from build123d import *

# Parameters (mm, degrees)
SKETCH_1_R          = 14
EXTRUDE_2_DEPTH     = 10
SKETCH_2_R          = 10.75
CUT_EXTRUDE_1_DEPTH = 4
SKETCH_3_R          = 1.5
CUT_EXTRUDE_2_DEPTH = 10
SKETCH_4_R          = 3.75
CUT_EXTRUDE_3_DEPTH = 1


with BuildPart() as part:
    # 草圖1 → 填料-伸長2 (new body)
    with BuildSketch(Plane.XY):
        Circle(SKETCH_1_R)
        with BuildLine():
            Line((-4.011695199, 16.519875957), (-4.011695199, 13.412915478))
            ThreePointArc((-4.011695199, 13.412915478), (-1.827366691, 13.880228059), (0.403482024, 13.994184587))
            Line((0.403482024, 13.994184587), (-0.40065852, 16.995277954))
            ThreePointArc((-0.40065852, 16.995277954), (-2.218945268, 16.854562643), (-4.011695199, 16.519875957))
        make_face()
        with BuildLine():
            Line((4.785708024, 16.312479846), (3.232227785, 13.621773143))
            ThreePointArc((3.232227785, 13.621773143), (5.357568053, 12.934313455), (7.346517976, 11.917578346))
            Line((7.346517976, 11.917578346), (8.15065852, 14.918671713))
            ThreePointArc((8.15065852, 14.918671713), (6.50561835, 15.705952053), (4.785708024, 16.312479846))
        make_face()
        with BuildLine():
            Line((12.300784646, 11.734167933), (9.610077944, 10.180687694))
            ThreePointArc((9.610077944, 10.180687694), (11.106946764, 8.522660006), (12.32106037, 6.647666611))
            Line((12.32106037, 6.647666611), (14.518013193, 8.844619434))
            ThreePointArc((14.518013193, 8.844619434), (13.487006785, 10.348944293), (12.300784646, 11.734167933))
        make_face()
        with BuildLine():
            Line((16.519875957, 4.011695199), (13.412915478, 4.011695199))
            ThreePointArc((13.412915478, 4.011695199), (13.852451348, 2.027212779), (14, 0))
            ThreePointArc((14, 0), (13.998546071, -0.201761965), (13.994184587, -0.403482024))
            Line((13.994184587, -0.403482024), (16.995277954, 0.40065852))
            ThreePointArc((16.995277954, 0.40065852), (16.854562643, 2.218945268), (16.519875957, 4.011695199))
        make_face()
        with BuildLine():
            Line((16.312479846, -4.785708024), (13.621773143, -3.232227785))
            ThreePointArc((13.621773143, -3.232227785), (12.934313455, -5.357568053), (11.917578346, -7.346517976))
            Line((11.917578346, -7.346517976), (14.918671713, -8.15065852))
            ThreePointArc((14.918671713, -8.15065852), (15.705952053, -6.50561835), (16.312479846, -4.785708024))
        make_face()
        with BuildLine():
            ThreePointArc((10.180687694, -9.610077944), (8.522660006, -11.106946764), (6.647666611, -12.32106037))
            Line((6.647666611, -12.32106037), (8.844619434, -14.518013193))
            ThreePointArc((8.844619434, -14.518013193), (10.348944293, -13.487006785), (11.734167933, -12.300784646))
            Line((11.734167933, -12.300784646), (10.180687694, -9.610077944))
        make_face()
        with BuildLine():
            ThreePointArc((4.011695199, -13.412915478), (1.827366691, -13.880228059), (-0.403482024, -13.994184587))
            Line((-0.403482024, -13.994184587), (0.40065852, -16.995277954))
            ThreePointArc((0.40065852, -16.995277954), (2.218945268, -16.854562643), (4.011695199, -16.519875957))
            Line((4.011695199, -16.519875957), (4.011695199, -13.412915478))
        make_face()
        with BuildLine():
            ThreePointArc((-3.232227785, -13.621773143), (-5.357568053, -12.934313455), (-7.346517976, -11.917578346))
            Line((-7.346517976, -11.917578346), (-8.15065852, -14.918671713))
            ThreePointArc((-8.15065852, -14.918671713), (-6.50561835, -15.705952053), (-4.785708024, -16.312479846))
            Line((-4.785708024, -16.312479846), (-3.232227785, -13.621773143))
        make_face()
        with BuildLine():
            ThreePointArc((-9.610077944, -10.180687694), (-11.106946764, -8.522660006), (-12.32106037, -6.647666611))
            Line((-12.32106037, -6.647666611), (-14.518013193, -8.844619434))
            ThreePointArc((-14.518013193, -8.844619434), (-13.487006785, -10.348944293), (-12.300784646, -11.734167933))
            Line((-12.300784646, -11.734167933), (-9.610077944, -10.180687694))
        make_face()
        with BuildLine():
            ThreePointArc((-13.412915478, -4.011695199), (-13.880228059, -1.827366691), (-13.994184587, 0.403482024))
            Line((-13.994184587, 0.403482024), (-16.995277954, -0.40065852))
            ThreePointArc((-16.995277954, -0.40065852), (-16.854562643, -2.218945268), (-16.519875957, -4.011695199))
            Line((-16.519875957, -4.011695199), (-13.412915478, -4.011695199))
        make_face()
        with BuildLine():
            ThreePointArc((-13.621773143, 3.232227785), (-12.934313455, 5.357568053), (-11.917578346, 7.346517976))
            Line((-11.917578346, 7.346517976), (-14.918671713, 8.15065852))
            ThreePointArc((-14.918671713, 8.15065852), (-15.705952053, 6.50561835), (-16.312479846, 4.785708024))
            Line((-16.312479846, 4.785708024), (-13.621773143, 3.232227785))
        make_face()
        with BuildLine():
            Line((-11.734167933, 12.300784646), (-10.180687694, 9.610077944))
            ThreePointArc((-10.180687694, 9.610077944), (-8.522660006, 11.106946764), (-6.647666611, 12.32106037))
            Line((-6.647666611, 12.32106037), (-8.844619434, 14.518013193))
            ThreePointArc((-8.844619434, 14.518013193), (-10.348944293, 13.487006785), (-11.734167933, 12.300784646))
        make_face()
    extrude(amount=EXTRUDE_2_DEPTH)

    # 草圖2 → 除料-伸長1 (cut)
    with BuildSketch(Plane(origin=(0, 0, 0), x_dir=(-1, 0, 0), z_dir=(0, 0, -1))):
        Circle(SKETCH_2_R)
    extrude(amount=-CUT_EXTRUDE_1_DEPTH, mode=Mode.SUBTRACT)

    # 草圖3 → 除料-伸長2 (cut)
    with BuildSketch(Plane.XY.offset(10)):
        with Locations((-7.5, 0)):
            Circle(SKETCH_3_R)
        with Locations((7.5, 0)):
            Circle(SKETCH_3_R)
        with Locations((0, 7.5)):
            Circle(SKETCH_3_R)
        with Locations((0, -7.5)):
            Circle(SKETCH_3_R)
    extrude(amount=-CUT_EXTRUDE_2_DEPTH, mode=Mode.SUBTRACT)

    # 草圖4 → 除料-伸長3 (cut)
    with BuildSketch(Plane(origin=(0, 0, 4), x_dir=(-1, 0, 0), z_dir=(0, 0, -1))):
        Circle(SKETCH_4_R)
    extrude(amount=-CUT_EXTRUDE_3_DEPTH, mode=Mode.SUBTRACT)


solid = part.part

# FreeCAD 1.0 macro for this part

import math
import FreeCAD as App
import Part
import Sketcher

V = App.Vector
Q = App.Units.Quantity

doc = App.newDocument("Part")
params = doc.addObject("Spreadsheet::Sheet", "Params")
for row, (alias, value) in enumerate([
    ("sketch1_radius", "17 mm"),
    ("sketch1_radius2", "14 mm"),
    ("pad1_length", "10 mm"),
    ("sketch2_diameter", "21.5 mm"),
    ("pocket1_length", "4 mm"),
    ("sketch3_diameter", "3 mm"),
    ("pocket2_length", "10 mm"),
    ("sketch4_diameter", "7.5 mm"),
    ("pocket3_length", "1 mm"),
], start=1):
    params.set(f"A{row}", alias)
    params.set(f"B{row}", "=" + value)
    params.setAlias(f"B{row}", alias)

body = doc.addObject("PartDesign::Body", "Body")

sketch1 = body.newObject("Sketcher::SketchObject", "Sketch")
sketch1.AttachmentSupport = (doc.getObject("XY_Plane"), [""])
sketch1.MapMode = "FlatFace"
sketch1.addGeometry(Part.LineSegment(V(0.4, 14, 0), V(-0.4, 17, 0)), False)
sketch1.addGeometry(Part.ArcOfCircle(Part.Circle(V(0, 0, 0), V(0, 0, 1), 17), math.radians(91.35), math.radians(103.65)), False)
sketch1.addGeometry(Part.LineSegment(V(-4, 16.5, 0), V(-4, 13.4, 0)), False)
sketch1.addGeometry(Part.ArcOfCircle(Part.Circle(V(0, 0, 0), V(0, 0, 1), 14), math.radians(106.65), math.radians(118.35)), False)
sketch1.addGeometry(Part.LineSegment(V(-6.6, 12.3, 0), V(-8.8, 14.5, 0)), False)
sketch1.addGeometry(Part.ArcOfCircle(Part.Circle(V(0, 0, 0), V(0, 0, 1), 17), math.radians(121.35), math.radians(133.65)), False)
sketch1.addGeometry(Part.LineSegment(V(-11.7, 12.3, 0), V(-10.2, 9.6, 0)), False)
sketch1.addGeometry(Part.ArcOfCircle(Part.Circle(V(0, 0, 0), V(0, 0, 1), 14), math.radians(136.65), math.radians(148.35)), False)
sketch1.addGeometry(Part.LineSegment(V(-11.9, 7.3, 0), V(-14.9, 8.2, 0)), False)
sketch1.addGeometry(Part.ArcOfCircle(Part.Circle(V(0, 0, 0), V(0, 0, 1), 17), math.radians(151.35), math.radians(163.65)), False)
sketch1.addGeometry(Part.LineSegment(V(-16.3, 4.8, 0), V(-13.6, 3.2, 0)), False)
sketch1.addGeometry(Part.ArcOfCircle(Part.Circle(V(0, 0, 0), V(0, 0, 1), 14), math.radians(166.65), math.radians(178.35)), False)
sketch1.addGeometry(Part.LineSegment(V(-14, 0.4, 0), V(-17, -0.4, 0)), False)
sketch1.addGeometry(Part.ArcOfCircle(Part.Circle(V(0, 0, 0), V(0, 0, 1), 17), math.radians(-178.65), math.radians(-166.35)), False)
sketch1.addGeometry(Part.LineSegment(V(-16.5, -4, 0), V(-13.4, -4, 0)), False)
sketch1.addGeometry(Part.ArcOfCircle(Part.Circle(V(0, 0, 0), V(0, 0, 1), 14), math.radians(-163.35), math.radians(-151.65)), False)
sketch1.addGeometry(Part.LineSegment(V(-12.3, -6.6, 0), V(-14.5, -8.8, 0)), False)
sketch1.addGeometry(Part.ArcOfCircle(Part.Circle(V(0, 0, 0), V(0, 0, 1), 17), math.radians(-148.65), math.radians(-136.35)), False)
sketch1.addGeometry(Part.LineSegment(V(-12.3, -11.7, 0), V(-9.6, -10.2, 0)), False)
sketch1.addGeometry(Part.ArcOfCircle(Part.Circle(V(0, 0, 0), V(0, 0, 1), 14), math.radians(-133.35), math.radians(-121.65)), False)
sketch1.addGeometry(Part.LineSegment(V(-7.3, -11.9, 0), V(-8.2, -14.9, 0)), False)
sketch1.addGeometry(Part.ArcOfCircle(Part.Circle(V(0, 0, 0), V(0, 0, 1), 17), math.radians(-118.65), math.radians(-106.35)), False)
sketch1.addGeometry(Part.LineSegment(V(-4.8, -16.3, 0), V(-3.2, -13.6, 0)), False)
sketch1.addGeometry(Part.ArcOfCircle(Part.Circle(V(0, 0, 0), V(0, 0, 1), 14), math.radians(-103.35), math.radians(-91.65)), False)
sketch1.addGeometry(Part.LineSegment(V(-0.4, -14, 0), V(0.4, -17, 0)), False)
sketch1.addGeometry(Part.ArcOfCircle(Part.Circle(V(0, 0, 0), V(0, 0, 1), 17), math.radians(-88.65), math.radians(-76.35)), False)
sketch1.addGeometry(Part.LineSegment(V(4, -16.5, 0), V(4, -13.4, 0)), False)
sketch1.addGeometry(Part.ArcOfCircle(Part.Circle(V(0, 0, 0), V(0, 0, 1), 14), math.radians(-73.35), math.radians(-61.65)), False)
sketch1.addGeometry(Part.LineSegment(V(6.6, -12.3, 0), V(8.8, -14.5, 0)), False)
sketch1.addGeometry(Part.ArcOfCircle(Part.Circle(V(0, 0, 0), V(0, 0, 1), 17), math.radians(-58.65), math.radians(-46.35)), False)
sketch1.addGeometry(Part.LineSegment(V(11.7, -12.3, 0), V(10.2, -9.6, 0)), False)
sketch1.addGeometry(Part.ArcOfCircle(Part.Circle(V(0, 0, 0), V(0, 0, 1), 14), math.radians(-43.35), math.radians(-31.65)), False)
sketch1.addGeometry(Part.LineSegment(V(11.9, -7.3, 0), V(14.9, -8.2, 0)), False)
sketch1.addGeometry(Part.ArcOfCircle(Part.Circle(V(0, 0, 0), V(0, 0, 1), 17), math.radians(-28.65), math.radians(-16.35)), False)
sketch1.addGeometry(Part.LineSegment(V(16.3, -4.8, 0), V(13.6, -3.2, 0)), False)
sketch1.addGeometry(Part.ArcOfCircle(Part.Circle(V(0, 0, 0), V(0, 0, 1), 14), math.radians(-13.35), math.radians(-1.65)), False)
sketch1.addGeometry(Part.LineSegment(V(14, -0.4, 0), V(17, 0.4, 0)), False)
sketch1.addGeometry(Part.ArcOfCircle(Part.Circle(V(0, 0, 0), V(0, 0, 1), 17), math.radians(1.35), math.radians(13.65)), False)
sketch1.addGeometry(Part.LineSegment(V(16.5, 4, 0), V(13.4, 4, 0)), False)
sketch1.addGeometry(Part.ArcOfCircle(Part.Circle(V(0, 0, 0), V(0, 0, 1), 14), math.radians(16.65), math.radians(28.35)), False)
sketch1.addGeometry(Part.LineSegment(V(12.3, 6.6, 0), V(14.5, 8.8, 0)), False)
sketch1.addGeometry(Part.ArcOfCircle(Part.Circle(V(0, 0, 0), V(0, 0, 1), 17), math.radians(31.35), math.radians(43.65)), False)
sketch1.addGeometry(Part.LineSegment(V(12.3, 11.7, 0), V(9.6, 10.2, 0)), False)
sketch1.addGeometry(Part.ArcOfCircle(Part.Circle(V(0, 0, 0), V(0, 0, 1), 14), math.radians(46.65), math.radians(58.35)), False)
sketch1.addGeometry(Part.LineSegment(V(7.3, 11.9, 0), V(8.2, 14.9, 0)), False)
sketch1.addGeometry(Part.ArcOfCircle(Part.Circle(V(0, 0, 0), V(0, 0, 1), 17), math.radians(61.35), math.radians(73.65)), False)
sketch1.addGeometry(Part.LineSegment(V(4.8, 16.3, 0), V(3.2, 13.6, 0)), False)
sketch1.addGeometry(Part.ArcOfCircle(Part.Circle(V(0, 0, 0), V(0, 0, 1), 14), math.radians(76.65), math.radians(88.35)), False)
sketch1.addConstraint(Sketcher.Constraint("Coincident", 0, 2, 1, 1))
sketch1.addConstraint(Sketcher.Constraint("Coincident", 1, 2, 2, 1))
sketch1.addConstraint(Sketcher.Constraint("Coincident", 2, 2, 3, 1))
sketch1.addConstraint(Sketcher.Constraint("Coincident", 3, 2, 4, 1))
sketch1.addConstraint(Sketcher.Constraint("Coincident", 4, 2, 5, 1))
sketch1.addConstraint(Sketcher.Constraint("Coincident", 5, 2, 6, 1))
sketch1.addConstraint(Sketcher.Constraint("Coincident", 6, 2, 7, 1))
sketch1.addConstraint(Sketcher.Constraint("Coincident", 7, 2, 8, 1))
sketch1.addConstraint(Sketcher.Constraint("Coincident", 8, 2, 9, 1))
sketch1.addConstraint(Sketcher.Constraint("Coincident", 9, 2, 10, 1))
sketch1.addConstraint(Sketcher.Constraint("Coincident", 10, 2, 11, 1))
sketch1.addConstraint(Sketcher.Constraint("Coincident", 11, 2, 12, 1))
sketch1.addConstraint(Sketcher.Constraint("Coincident", 12, 2, 13, 1))
sketch1.addConstraint(Sketcher.Constraint("Coincident", 13, 2, 14, 1))
sketch1.addConstraint(Sketcher.Constraint("Coincident", 14, 2, 15, 1))
sketch1.addConstraint(Sketcher.Constraint("Coincident", 15, 2, 16, 1))
sketch1.addConstraint(Sketcher.Constraint("Coincident", 16, 2, 17, 1))
sketch1.addConstraint(Sketcher.Constraint("Coincident", 17, 2, 18, 1))
sketch1.addConstraint(Sketcher.Constraint("Coincident", 18, 2, 19, 1))
sketch1.addConstraint(Sketcher.Constraint("Coincident", 19, 2, 20, 1))
sketch1.addConstraint(Sketcher.Constraint("Coincident", 20, 2, 21, 1))
sketch1.addConstraint(Sketcher.Constraint("Coincident", 21, 2, 22, 1))
sketch1.addConstraint(Sketcher.Constraint("Coincident", 22, 2, 23, 1))
sketch1.addConstraint(Sketcher.Constraint("Coincident", 23, 2, 24, 1))
sketch1.addConstraint(Sketcher.Constraint("Coincident", 24, 2, 25, 1))
sketch1.addConstraint(Sketcher.Constraint("Coincident", 25, 2, 26, 1))
sketch1.addConstraint(Sketcher.Constraint("Coincident", 26, 2, 27, 1))
sketch1.addConstraint(Sketcher.Constraint("Coincident", 27, 2, 28, 1))
sketch1.addConstraint(Sketcher.Constraint("Coincident", 28, 2, 29, 1))
sketch1.addConstraint(Sketcher.Constraint("Coincident", 29, 2, 30, 1))
sketch1.addConstraint(Sketcher.Constraint("Coincident", 30, 2, 31, 1))
sketch1.addConstraint(Sketcher.Constraint("Coincident", 31, 2, 32, 1))
sketch1.addConstraint(Sketcher.Constraint("Coincident", 32, 2, 33, 1))
sketch1.addConstraint(Sketcher.Constraint("Coincident", 33, 2, 34, 1))
sketch1.addConstraint(Sketcher.Constraint("Coincident", 34, 2, 35, 1))
sketch1.addConstraint(Sketcher.Constraint("Coincident", 35, 2, 36, 1))
sketch1.addConstraint(Sketcher.Constraint("Coincident", 36, 2, 37, 1))
sketch1.addConstraint(Sketcher.Constraint("Coincident", 37, 2, 38, 1))
sketch1.addConstraint(Sketcher.Constraint("Coincident", 38, 2, 39, 1))
sketch1.addConstraint(Sketcher.Constraint("Coincident", 39, 2, 40, 1))
sketch1.addConstraint(Sketcher.Constraint("Coincident", 40, 2, 41, 1))
sketch1.addConstraint(Sketcher.Constraint("Coincident", 41, 2, 42, 1))
sketch1.addConstraint(Sketcher.Constraint("Coincident", 42, 2, 43, 1))
sketch1.addConstraint(Sketcher.Constraint("Coincident", 43, 2, 44, 1))
sketch1.addConstraint(Sketcher.Constraint("Coincident", 44, 2, 45, 1))
sketch1.addConstraint(Sketcher.Constraint("Coincident", 45, 2, 46, 1))
sketch1.addConstraint(Sketcher.Constraint("Coincident", 46, 2, 47, 1))
sketch1.addConstraint(Sketcher.Constraint("Coincident", 47, 2, 0, 1))
sketch1.addConstraint(Sketcher.Constraint("Vertical", 2))
sketch1.addConstraint(Sketcher.Constraint("Horizontal", 14))
sketch1.addConstraint(Sketcher.Constraint("Vertical", 26))
sketch1.addConstraint(Sketcher.Constraint("Horizontal", 38))
sketch1.addConstraint(Sketcher.Constraint("Coincident", 1, 3, -1, 1))
sketch1.addConstraint(Sketcher.Constraint("Coincident", 3, 3, -1, 1))
sketch1.addConstraint(Sketcher.Constraint("Coincident", 5, 3, -1, 1))
sketch1.addConstraint(Sketcher.Constraint("Coincident", 7, 3, -1, 1))
sketch1.addConstraint(Sketcher.Constraint("Coincident", 9, 3, -1, 1))
sketch1.addConstraint(Sketcher.Constraint("Coincident", 11, 3, -1, 1))
sketch1.addConstraint(Sketcher.Constraint("Coincident", 13, 3, -1, 1))
sketch1.addConstraint(Sketcher.Constraint("Coincident", 15, 3, -1, 1))
sketch1.addConstraint(Sketcher.Constraint("Coincident", 17, 3, -1, 1))
sketch1.addConstraint(Sketcher.Constraint("Coincident", 19, 3, -1, 1))
sketch1.addConstraint(Sketcher.Constraint("Coincident", 21, 3, -1, 1))
sketch1.addConstraint(Sketcher.Constraint("Coincident", 23, 3, -1, 1))
sketch1.addConstraint(Sketcher.Constraint("Coincident", 25, 3, -1, 1))
sketch1.addConstraint(Sketcher.Constraint("Coincident", 27, 3, -1, 1))
sketch1.addConstraint(Sketcher.Constraint("Coincident", 29, 3, -1, 1))
sketch1.addConstraint(Sketcher.Constraint("Coincident", 31, 3, -1, 1))
sketch1.addConstraint(Sketcher.Constraint("Coincident", 33, 3, -1, 1))
sketch1.addConstraint(Sketcher.Constraint("Coincident", 35, 3, -1, 1))
sketch1.addConstraint(Sketcher.Constraint("Coincident", 37, 3, -1, 1))
sketch1.addConstraint(Sketcher.Constraint("Coincident", 39, 3, -1, 1))
sketch1.addConstraint(Sketcher.Constraint("Coincident", 41, 3, -1, 1))
sketch1.addConstraint(Sketcher.Constraint("Coincident", 43, 3, -1, 1))
sketch1.addConstraint(Sketcher.Constraint("Coincident", 45, 3, -1, 1))
sketch1.addConstraint(Sketcher.Constraint("Coincident", 47, 3, -1, 1))
sketch1.addConstraint(Sketcher.Constraint("Equal", 1, 5))
sketch1.addConstraint(Sketcher.Constraint("Equal", 3, 7))
sketch1.addConstraint(Sketcher.Constraint("Equal", 5, 9))
sketch1.addConstraint(Sketcher.Constraint("Equal", 7, 11))
sketch1.addConstraint(Sketcher.Constraint("Equal", 9, 13))
sketch1.addConstraint(Sketcher.Constraint("Equal", 11, 15))
sketch1.addConstraint(Sketcher.Constraint("Equal", 13, 17))
sketch1.addConstraint(Sketcher.Constraint("Equal", 15, 19))
sketch1.addConstraint(Sketcher.Constraint("Equal", 17, 21))
sketch1.addConstraint(Sketcher.Constraint("Equal", 19, 23))
sketch1.addConstraint(Sketcher.Constraint("Equal", 21, 25))
sketch1.addConstraint(Sketcher.Constraint("Equal", 23, 27))
sketch1.addConstraint(Sketcher.Constraint("Equal", 25, 29))
sketch1.addConstraint(Sketcher.Constraint("Equal", 27, 31))
sketch1.addConstraint(Sketcher.Constraint("Equal", 29, 33))
sketch1.addConstraint(Sketcher.Constraint("Equal", 31, 35))
sketch1.addConstraint(Sketcher.Constraint("Equal", 33, 37))
sketch1.addConstraint(Sketcher.Constraint("Equal", 35, 39))
sketch1.addConstraint(Sketcher.Constraint("Equal", 37, 41))
sketch1.addConstraint(Sketcher.Constraint("Equal", 39, 43))
sketch1.addConstraint(Sketcher.Constraint("Equal", 41, 45))
sketch1.addConstraint(Sketcher.Constraint("Equal", 43, 47))
sketch1.addConstraint(Sketcher.Constraint("Perpendicular", 0, 12))
sketch1.addConstraint(Sketcher.Constraint("Perpendicular", 4, 16))
sketch1.addConstraint(Sketcher.Constraint("Perpendicular", 6, 18))
sketch1.addConstraint(Sketcher.Constraint("Perpendicular", 8, 20))
sketch1.addConstraint(Sketcher.Constraint("Perpendicular", 10, 22))
sketch1.addConstraint(Sketcher.Constraint("Perpendicular", 12, 24))
sketch1.addConstraint(Sketcher.Constraint("Perpendicular", 16, 28))
sketch1.addConstraint(Sketcher.Constraint("Perpendicular", 18, 30))
sketch1.addConstraint(Sketcher.Constraint("Perpendicular", 20, 32))
sketch1.addConstraint(Sketcher.Constraint("Perpendicular", 22, 34))
sketch1.addConstraint(Sketcher.Constraint("Perpendicular", 24, 36))
sketch1.addConstraint(Sketcher.Constraint("Perpendicular", 28, 40))
sketch1.addConstraint(Sketcher.Constraint("Perpendicular", 30, 42))
sketch1.addConstraint(Sketcher.Constraint("Perpendicular", 32, 44))
sketch1.addConstraint(Sketcher.Constraint("Perpendicular", 34, 46))
sketch1.addConstraint(Sketcher.Constraint("Equal", 14, 38))
sketch1.addConstraint(Sketcher.Constraint("Equal", 38, 2))
sketch1.addConstraint(Sketcher.Constraint("Equal", 2, 26))
sketch1.addConstraint(Sketcher.Constraint("Equal", 0, 4))
sketch1.addConstraint(Sketcher.Constraint("Equal", 4, 6))
sketch1.addConstraint(Sketcher.Constraint("Equal", 6, 8))
sketch1.addConstraint(Sketcher.Constraint("Equal", 8, 10))
sketch1.addConstraint(Sketcher.Constraint("Equal", 10, 12))
sketch1.addConstraint(Sketcher.Constraint("Equal", 12, 16))
sketch1.addConstraint(Sketcher.Constraint("Equal", 16, 18))
sketch1.addConstraint(Sketcher.Constraint("Equal", 18, 20))
sketch1.addConstraint(Sketcher.Constraint("Equal", 20, 22))
sketch1.addConstraint(Sketcher.Constraint("Equal", 22, 24))
sketch1.addConstraint(Sketcher.Constraint("Equal", 24, 28))
sketch1.addConstraint(Sketcher.Constraint("Equal", 28, 30))
sketch1.addConstraint(Sketcher.Constraint("Equal", 30, 32))
sketch1.addConstraint(Sketcher.Constraint("Equal", 32, 34))
sketch1.addConstraint(Sketcher.Constraint("Equal", 34, 36))
sketch1.addConstraint(Sketcher.Constraint("Equal", 36, 40))
sketch1.addConstraint(Sketcher.Constraint("Equal", 40, 42))
sketch1.addConstraint(Sketcher.Constraint("Equal", 42, 44))
sketch1.addConstraint(Sketcher.Constraint("Equal", 44, 46))
sketch1.addConstraint(Sketcher.Constraint("Radius", 1, 17.0))
sketch1.addConstraint(Sketcher.Constraint("Radius", 3, 14.0))
sketch1.addConstraint(Sketcher.Constraint("Angle", 0, Q("105 deg")))
sketch1.addConstraint(Sketcher.Constraint("Angle", 4, Q("135 deg")))
sketch1.addConstraint(Sketcher.Constraint("Angle", 6, Q("-60 deg")))
sketch1.addConstraint(Sketcher.Constraint("Angle", 8, Q("165 deg")))
sketch1.addConstraint(Sketcher.Constraint("Angle", 10, Q("-30 deg")))
sketch1.addConstraint(Sketcher.Constraint("DistanceX", 14, 1, 14, 2, 3.10696))
sketch1.addConstraint(Sketcher.Constraint("Distance", 0, 3.10696))
sketch1.setExpression("Constraints[135]", "Params.sketch1_radius")
sketch1.setExpression("Constraints[136]", "Params.sketch1_radius2")
pad1 = body.newObject("PartDesign::Pad", "Pad")
pad1.Profile = sketch1
pad1.setExpression("Length", "Params.pad1_length")

sketch2 = body.newObject("Sketcher::SketchObject", "Sketch001")
sketch2.AttachmentSupport = (doc.getObject("XY_Plane"), [""])
sketch2.MapMode = "FlatFace"
sketch2.addGeometry(Part.Circle(V(0, 0, 0), V(0, 0, 1), 11), False)
sketch2.addConstraint(Sketcher.Constraint("Coincident", 0, 3, -1, 1))
sketch2.addConstraint(Sketcher.Constraint("Diameter", 0, 21.5))
sketch2.setExpression("Constraints[1]", "Params.sketch2_diameter")
pocket1 = body.newObject("PartDesign::Pocket", "Pocket")
pocket1.Profile = sketch2
pocket1.setExpression("Length", "Params.pocket1_length")
pocket1.Reversed = True

sketch3 = body.newObject("Sketcher::SketchObject", "Sketch002")
sketch3.AttachmentSupport = (doc.getObject("XY_Plane"), [""])
sketch3.MapMode = "FlatFace"
sketch3.AttachmentOffset = App.Placement(V(0, 0, 10), App.Rotation())
sketch3.addGeometry(Part.Circle(V(-7.5, 0, 0), V(0, 0, 1), 1.5), False)
sketch3.addGeometry(Part.Circle(V(7.5, 0, 0), V(0, 0, 1), 1.5), False)
sketch3.addGeometry(Part.Circle(V(0, 7.5, 0), V(0, 0, 1), 1.5), False)
sketch3.addGeometry(Part.Circle(V(0, -7.5, 0), V(0, 0, 1), 1.5), False)
sketch3.addConstraint(Sketcher.Constraint("Equal", 0, 1))
sketch3.addConstraint(Sketcher.Constraint("Equal", 1, 2))
sketch3.addConstraint(Sketcher.Constraint("Equal", 2, 3))
sketch3.addConstraint(Sketcher.Constraint("Symmetric", 0, 3, 1, 3, -1, 1))
sketch3.addConstraint(Sketcher.Constraint("Symmetric", 2, 3, 3, 3, -1, 1))
sketch3.addConstraint(Sketcher.Constraint("PointOnObject", 0, 3, -1))
sketch3.addConstraint(Sketcher.Constraint("PointOnObject", 2, 3, -2))
sketch3.addConstraint(Sketcher.Constraint("Diameter", 0, 3.0))
sketch3.addConstraint(Sketcher.Constraint("DistanceX", 0, 3, 1, 3, 15.0))
sketch3.addConstraint(Sketcher.Constraint("DistanceY", 3, 3, 2, 3, 15.0))
sketch3.setExpression("Constraints[7]", "Params.sketch3_diameter")
pocket2 = body.newObject("PartDesign::Pocket", "Pocket001")
pocket2.Profile = sketch3
pocket2.setExpression("Length", "Params.pocket2_length")

sketch4 = body.newObject("Sketcher::SketchObject", "Sketch003")
sketch4.AttachmentSupport = (doc.getObject("XY_Plane"), [""])
sketch4.MapMode = "FlatFace"
sketch4.AttachmentOffset = App.Placement(V(0, 0, 4), App.Rotation())
sketch4.addGeometry(Part.Circle(V(0, 0, 0), V(0, 0, 1), 3.8), False)
sketch4.addConstraint(Sketcher.Constraint("Coincident", 0, 3, -1, 1))
sketch4.addConstraint(Sketcher.Constraint("Diameter", 0, 7.5))
sketch4.setExpression("Constraints[1]", "Params.sketch4_diameter")
pocket3 = body.newObject("PartDesign::Pocket", "Pocket002")
pocket3.Profile = sketch4
pocket3.setExpression("Length", "Params.pocket3_length")
pocket3.Reversed = True

doc.recompute()
